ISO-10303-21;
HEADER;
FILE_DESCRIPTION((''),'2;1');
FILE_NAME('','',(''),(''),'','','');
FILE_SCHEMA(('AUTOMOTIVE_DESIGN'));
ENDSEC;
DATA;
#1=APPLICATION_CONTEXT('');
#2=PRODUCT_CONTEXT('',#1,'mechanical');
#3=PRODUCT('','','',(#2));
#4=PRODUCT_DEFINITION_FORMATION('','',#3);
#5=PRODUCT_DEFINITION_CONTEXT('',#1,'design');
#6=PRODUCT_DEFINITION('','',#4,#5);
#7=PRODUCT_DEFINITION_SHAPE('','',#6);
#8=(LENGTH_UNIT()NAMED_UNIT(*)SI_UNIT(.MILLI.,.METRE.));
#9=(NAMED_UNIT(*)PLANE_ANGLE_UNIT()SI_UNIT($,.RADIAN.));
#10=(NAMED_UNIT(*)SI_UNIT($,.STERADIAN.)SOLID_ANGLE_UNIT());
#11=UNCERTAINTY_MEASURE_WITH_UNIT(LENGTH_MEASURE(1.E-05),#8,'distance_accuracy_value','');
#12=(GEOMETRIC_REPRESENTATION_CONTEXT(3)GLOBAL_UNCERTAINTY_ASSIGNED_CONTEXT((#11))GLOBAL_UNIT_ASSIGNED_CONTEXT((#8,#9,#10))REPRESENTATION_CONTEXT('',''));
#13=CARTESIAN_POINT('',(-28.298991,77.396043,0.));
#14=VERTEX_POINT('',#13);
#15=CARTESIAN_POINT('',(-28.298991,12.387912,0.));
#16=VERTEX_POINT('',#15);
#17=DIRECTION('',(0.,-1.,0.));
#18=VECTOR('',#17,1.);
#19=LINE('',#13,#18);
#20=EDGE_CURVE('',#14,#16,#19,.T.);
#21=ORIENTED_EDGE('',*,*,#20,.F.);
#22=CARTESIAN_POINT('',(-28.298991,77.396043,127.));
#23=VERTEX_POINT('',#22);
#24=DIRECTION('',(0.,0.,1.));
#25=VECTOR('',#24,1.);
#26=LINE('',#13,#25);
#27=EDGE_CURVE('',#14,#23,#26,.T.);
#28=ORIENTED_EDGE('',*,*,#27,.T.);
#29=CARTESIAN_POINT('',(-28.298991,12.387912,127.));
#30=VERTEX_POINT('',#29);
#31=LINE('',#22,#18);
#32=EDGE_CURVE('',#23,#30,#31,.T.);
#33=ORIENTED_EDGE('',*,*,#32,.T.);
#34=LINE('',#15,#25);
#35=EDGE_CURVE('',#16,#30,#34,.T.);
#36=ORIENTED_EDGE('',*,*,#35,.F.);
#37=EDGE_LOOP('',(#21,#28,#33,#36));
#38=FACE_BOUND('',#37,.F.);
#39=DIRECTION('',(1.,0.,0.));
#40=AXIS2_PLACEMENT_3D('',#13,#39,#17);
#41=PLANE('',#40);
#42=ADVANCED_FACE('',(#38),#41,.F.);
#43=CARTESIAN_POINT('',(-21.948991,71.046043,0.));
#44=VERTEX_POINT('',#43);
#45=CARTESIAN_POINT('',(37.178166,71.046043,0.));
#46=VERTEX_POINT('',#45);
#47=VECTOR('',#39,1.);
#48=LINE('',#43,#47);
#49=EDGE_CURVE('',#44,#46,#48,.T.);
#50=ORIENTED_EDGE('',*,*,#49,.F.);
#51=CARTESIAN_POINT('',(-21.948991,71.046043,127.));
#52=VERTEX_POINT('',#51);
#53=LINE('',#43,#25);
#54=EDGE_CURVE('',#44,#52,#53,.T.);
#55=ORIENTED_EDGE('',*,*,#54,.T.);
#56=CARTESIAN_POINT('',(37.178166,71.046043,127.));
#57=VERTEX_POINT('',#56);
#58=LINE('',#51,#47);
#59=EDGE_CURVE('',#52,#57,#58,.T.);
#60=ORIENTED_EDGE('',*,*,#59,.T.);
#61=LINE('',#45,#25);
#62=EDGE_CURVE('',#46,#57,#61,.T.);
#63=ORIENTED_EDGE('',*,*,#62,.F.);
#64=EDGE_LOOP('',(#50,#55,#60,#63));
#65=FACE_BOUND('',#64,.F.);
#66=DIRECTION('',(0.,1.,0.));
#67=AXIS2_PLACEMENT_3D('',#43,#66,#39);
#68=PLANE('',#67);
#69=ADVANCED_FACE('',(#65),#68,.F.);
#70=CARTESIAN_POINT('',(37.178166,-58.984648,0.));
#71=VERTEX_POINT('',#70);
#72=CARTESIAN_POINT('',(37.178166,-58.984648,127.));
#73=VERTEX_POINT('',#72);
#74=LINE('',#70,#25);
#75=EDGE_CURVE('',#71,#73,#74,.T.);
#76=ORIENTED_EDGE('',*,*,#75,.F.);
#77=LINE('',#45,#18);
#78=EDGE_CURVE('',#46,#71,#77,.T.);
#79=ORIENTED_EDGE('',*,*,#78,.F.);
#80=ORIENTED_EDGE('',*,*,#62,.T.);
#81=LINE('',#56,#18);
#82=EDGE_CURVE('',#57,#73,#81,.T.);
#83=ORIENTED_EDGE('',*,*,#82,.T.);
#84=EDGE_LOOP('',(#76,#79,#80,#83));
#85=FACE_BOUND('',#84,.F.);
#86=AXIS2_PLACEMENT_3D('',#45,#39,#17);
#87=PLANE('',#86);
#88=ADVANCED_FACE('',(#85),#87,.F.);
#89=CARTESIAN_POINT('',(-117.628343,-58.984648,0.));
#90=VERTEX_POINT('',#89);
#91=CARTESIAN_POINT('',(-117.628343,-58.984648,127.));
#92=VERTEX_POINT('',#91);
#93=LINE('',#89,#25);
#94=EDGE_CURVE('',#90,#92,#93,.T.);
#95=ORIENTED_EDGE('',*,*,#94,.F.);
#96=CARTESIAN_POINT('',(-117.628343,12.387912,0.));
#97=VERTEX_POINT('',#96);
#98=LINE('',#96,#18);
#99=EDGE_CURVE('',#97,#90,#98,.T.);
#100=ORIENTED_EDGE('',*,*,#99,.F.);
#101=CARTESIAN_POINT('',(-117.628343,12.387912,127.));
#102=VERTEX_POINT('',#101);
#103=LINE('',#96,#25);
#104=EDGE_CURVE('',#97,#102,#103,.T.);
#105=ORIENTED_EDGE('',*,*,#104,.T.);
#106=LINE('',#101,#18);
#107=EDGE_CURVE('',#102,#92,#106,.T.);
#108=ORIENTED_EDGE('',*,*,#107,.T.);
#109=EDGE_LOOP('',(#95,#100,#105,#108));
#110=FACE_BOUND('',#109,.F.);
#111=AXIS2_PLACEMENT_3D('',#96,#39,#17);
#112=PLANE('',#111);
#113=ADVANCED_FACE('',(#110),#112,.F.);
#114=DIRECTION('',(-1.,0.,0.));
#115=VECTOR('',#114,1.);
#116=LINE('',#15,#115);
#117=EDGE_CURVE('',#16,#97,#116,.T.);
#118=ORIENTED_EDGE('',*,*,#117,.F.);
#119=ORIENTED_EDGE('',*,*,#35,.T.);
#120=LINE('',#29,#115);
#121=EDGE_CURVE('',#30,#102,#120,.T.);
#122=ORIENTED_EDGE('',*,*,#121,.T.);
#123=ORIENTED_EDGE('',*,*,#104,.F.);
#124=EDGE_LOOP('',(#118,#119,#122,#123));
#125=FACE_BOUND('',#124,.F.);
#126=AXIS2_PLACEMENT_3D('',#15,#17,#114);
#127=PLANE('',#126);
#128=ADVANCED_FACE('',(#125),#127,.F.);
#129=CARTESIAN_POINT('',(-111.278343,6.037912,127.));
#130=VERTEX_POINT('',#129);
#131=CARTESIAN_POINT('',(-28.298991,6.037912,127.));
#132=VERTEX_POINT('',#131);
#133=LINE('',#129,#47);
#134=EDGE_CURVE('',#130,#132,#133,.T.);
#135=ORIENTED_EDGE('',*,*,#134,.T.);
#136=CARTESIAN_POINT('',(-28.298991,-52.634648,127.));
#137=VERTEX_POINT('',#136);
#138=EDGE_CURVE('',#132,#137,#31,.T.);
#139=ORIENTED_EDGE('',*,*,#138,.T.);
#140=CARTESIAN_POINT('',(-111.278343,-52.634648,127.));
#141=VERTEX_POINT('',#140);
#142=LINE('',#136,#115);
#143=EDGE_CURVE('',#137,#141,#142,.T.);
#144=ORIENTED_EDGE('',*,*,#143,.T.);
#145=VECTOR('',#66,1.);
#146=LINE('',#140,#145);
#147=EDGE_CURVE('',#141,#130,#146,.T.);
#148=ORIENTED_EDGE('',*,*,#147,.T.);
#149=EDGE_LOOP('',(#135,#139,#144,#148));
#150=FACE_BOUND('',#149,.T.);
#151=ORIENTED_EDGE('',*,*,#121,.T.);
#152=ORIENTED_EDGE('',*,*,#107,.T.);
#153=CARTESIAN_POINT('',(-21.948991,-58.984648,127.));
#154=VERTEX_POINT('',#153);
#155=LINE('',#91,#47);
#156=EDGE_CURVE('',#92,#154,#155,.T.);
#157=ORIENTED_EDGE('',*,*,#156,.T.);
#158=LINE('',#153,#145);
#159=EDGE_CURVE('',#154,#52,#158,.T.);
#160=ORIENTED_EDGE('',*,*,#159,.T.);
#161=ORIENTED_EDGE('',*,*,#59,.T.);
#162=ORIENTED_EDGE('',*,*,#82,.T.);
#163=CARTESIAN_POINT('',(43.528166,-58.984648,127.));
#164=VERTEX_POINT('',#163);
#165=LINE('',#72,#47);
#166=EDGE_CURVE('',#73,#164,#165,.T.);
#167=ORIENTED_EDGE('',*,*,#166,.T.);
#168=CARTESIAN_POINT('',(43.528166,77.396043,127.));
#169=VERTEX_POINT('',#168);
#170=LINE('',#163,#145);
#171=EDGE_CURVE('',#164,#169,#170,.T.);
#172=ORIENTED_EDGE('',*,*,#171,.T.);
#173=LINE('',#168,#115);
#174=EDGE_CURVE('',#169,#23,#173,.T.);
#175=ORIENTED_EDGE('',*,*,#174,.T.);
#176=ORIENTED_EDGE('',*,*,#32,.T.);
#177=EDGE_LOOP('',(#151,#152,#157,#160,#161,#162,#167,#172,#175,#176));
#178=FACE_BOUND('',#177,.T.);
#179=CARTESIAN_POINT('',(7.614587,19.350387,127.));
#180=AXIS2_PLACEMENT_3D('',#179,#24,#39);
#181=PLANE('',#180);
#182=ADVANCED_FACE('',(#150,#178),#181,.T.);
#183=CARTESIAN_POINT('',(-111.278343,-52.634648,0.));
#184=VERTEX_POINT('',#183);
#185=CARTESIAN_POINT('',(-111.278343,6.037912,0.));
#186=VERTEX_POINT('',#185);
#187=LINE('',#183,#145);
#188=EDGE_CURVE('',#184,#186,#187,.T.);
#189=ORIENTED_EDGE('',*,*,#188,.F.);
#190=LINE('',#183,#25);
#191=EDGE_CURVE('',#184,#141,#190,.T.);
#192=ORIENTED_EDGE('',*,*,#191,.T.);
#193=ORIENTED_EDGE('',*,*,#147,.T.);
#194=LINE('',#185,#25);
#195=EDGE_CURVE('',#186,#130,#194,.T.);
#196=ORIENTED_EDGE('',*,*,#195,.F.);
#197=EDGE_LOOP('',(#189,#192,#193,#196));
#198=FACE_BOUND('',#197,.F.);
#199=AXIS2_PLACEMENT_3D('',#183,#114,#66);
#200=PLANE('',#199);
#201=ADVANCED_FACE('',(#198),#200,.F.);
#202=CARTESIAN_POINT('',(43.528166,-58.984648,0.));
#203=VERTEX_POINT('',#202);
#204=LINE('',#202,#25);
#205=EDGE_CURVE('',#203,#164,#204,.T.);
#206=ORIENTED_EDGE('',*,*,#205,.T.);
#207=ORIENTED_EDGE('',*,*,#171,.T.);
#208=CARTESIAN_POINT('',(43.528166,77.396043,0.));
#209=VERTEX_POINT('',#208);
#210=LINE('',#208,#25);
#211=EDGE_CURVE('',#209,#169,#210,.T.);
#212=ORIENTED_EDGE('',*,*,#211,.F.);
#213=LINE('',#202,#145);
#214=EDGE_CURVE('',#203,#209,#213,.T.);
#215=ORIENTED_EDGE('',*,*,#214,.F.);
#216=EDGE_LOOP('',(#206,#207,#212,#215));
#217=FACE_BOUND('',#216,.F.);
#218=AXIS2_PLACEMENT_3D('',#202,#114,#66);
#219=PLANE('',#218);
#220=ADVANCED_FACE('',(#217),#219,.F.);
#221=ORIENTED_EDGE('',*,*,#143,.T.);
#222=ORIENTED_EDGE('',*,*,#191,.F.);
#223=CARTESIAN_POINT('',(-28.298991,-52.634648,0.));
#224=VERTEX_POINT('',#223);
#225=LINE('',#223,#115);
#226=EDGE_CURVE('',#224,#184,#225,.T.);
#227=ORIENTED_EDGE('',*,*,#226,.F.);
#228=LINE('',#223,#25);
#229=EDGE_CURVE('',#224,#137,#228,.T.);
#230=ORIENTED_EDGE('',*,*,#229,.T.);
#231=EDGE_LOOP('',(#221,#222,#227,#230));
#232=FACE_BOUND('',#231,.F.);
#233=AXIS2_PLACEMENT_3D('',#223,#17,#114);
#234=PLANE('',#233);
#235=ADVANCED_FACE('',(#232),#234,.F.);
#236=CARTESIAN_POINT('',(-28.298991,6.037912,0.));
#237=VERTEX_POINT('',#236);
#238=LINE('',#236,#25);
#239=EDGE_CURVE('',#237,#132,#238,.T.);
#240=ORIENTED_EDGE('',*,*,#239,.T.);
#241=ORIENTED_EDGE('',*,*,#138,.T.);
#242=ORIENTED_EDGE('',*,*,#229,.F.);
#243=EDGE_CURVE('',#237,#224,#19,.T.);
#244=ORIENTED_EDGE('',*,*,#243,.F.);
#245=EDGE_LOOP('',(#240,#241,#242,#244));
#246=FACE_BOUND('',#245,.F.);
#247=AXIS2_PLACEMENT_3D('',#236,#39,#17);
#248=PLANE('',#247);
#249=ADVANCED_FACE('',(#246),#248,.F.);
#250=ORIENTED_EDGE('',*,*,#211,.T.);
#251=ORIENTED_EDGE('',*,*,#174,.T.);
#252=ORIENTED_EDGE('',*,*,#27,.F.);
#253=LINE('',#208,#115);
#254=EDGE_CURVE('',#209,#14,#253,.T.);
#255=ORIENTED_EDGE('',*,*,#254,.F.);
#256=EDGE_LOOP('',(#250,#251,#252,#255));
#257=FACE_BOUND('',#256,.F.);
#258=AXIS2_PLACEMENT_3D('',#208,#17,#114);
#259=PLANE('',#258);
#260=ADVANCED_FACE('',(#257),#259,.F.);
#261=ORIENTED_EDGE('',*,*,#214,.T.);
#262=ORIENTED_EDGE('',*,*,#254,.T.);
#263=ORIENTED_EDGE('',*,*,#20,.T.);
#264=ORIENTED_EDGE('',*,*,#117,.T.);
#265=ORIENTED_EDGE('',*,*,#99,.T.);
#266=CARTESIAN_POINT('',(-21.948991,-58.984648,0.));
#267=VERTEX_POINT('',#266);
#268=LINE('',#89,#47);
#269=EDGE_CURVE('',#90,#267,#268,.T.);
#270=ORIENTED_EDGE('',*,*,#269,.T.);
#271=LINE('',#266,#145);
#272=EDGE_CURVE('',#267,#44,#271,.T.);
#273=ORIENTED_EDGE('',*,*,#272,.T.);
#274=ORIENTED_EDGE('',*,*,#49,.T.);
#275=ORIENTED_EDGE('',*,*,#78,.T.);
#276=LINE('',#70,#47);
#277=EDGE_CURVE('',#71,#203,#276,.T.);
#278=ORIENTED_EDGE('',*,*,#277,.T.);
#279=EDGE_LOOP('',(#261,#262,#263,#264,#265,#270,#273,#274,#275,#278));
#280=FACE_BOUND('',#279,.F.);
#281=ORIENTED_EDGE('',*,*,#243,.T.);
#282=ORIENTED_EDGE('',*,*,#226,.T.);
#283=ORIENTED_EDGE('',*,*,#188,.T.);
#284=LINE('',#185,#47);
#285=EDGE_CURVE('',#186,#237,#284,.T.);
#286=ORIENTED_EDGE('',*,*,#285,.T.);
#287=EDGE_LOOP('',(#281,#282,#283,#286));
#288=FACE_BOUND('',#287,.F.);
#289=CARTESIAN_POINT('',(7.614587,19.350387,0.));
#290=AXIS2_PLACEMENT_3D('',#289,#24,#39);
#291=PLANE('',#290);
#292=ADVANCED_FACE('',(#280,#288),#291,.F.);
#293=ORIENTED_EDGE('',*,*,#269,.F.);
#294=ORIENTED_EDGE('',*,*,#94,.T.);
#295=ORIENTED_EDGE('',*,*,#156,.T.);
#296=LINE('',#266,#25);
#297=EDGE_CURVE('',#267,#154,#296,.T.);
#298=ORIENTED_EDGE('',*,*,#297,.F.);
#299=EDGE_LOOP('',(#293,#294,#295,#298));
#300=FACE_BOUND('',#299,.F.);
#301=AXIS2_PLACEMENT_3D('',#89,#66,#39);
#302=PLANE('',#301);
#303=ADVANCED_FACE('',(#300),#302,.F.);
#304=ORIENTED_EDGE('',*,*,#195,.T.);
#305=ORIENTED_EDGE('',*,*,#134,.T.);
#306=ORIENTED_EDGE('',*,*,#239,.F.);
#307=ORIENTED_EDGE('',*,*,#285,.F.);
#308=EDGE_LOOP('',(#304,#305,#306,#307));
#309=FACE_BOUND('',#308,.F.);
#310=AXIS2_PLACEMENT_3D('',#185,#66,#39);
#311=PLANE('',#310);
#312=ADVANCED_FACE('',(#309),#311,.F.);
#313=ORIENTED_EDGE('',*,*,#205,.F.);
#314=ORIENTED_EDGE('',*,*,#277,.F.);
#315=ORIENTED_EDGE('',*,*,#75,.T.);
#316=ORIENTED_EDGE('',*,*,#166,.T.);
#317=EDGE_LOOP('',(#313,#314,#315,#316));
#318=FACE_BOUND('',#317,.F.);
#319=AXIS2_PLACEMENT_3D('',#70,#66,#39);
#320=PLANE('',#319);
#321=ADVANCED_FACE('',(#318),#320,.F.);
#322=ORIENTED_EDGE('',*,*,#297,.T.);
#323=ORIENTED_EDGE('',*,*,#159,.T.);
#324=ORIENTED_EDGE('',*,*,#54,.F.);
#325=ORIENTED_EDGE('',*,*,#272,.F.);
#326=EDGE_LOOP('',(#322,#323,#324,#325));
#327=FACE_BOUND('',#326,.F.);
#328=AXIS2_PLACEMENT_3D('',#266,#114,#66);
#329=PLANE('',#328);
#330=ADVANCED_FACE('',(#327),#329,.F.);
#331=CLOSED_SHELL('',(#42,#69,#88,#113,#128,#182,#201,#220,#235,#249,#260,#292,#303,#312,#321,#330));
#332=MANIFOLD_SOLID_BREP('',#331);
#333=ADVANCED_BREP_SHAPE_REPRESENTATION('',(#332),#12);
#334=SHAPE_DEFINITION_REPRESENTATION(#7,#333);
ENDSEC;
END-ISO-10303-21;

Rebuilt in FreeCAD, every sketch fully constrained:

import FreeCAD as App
import Part
import Sketcher
Q = App.Units.Quantity


def add_polygon(sketch, points):
    """Adds a closed chain of lines whose ends are joined by coincident constraints."""
    first, n = sketch.GeometryCount, len(points)
    for a, b in zip(points, points[1:] + points[:1]):
        sketch.addGeometry(Part.LineSegment(App.Vector(*a, 0), App.Vector(*b, 0)), False)
    for i in range(n):
        sketch.addConstraint(Sketcher.Constraint("Coincident", first + i, 2, first + (i + 1) % n, 1))

doc = App.newDocument("Part")
body = doc.addObject("PartDesign::Body", "Body")

sketch1 = doc.addObject("Sketcher::SketchObject", "Sketch")
body.addObject(sketch1)
sketch1.AttachmentSupport = (doc.XY_Plane, [""])
sketch1.MapMode = "FlatFace"
add_polygon(sketch1, [(-28, 77), (-28, 12), (-118, 12), (-118, -59), (-22, -59), (-22, 71), (37, 71), (37, -59), (44, -59), (44, 77)])
add_polygon(sketch1, [(-28, 6), (-28, -53), (-111, -53), (-111, 6)])
sketch1.addConstraint(Sketcher.Constraint("Vertical", 0))
sketch1.addConstraint(Sketcher.Constraint("Horizontal", 1))
sketch1.addConstraint(Sketcher.Constraint("Vertical", 2))
sketch1.addConstraint(Sketcher.Constraint("Horizontal", 3))
sketch1.addConstraint(Sketcher.Constraint("Vertical", 4))
sketch1.addConstraint(Sketcher.Constraint("Horizontal", 5))
sketch1.addConstraint(Sketcher.Constraint("Vertical", 6))
sketch1.addConstraint(Sketcher.Constraint("Horizontal", 7))
sketch1.addConstraint(Sketcher.Constraint("Vertical", 8))
sketch1.addConstraint(Sketcher.Constraint("Horizontal", 9))
sketch1.addConstraint(Sketcher.Constraint("Vertical", 10))
sketch1.addConstraint(Sketcher.Constraint("Horizontal", 11))
sketch1.addConstraint(Sketcher.Constraint("Vertical", 12))
sketch1.addConstraint(Sketcher.Constraint("Horizontal", 13))
sketch1.addConstraint(Sketcher.Constraint("Horizontal", 3, 2, 6, 2))
sketch1.addConstraint(Sketcher.Constraint("Vertical", 9, 2, 10, 2))
sketch1.addConstraint(Sketcher.Constraint("DistanceX", 7, 1, 7, 2, Q("0.25 in")))
sketch1.addConstraint(Sketcher.Constraint("DistanceX", 0, 2, 3, 2, Q("0.25 in")))
sketch1.addConstraint(Sketcher.Constraint("DistanceY", 5, 2, 8, 2, Q("0.25 in")))
sketch1.addConstraint(Sketcher.Constraint("DistanceY", 3, 2, 10, 2, Q("0.25 in")))
sketch1.addConstraint(Sketcher.Constraint("DistanceX", 2, 2, 11, 2, Q("0.25 in")))
sketch1.addConstraint(Sketcher.Constraint("DistanceY", 12, 2, 1, 2, Q("0.25 in")))
sketch1.addConstraint(Sketcher.Constraint("DistanceX", 1, 2, 1, 1, 89.329352))
sketch1.addConstraint(Sketcher.Constraint("DistanceY", 0, 2, 0, 1, 65.008131))
sketch1.addConstraint(Sketcher.Constraint("DistanceY", 2, 2, 2, 1, 71.37256))
sketch1.addConstraint(Sketcher.Constraint("DistanceX", 5, 1, 5, 2, 59.127157))
sketch1.addConstraint(Sketcher.Constraint("DistanceX", 0, 2, -1, 1, 28.298991))
sketch1.addConstraint(Sketcher.Constraint("DistanceY", -1, 1, 0, 2, 12.387912))
pad1 = doc.addObject("PartDesign::Pad", "Pad")
body.addObject(pad1)
pad1.Profile = sketch1
pad1.Length = Q("5 in")

doc.recompute()
